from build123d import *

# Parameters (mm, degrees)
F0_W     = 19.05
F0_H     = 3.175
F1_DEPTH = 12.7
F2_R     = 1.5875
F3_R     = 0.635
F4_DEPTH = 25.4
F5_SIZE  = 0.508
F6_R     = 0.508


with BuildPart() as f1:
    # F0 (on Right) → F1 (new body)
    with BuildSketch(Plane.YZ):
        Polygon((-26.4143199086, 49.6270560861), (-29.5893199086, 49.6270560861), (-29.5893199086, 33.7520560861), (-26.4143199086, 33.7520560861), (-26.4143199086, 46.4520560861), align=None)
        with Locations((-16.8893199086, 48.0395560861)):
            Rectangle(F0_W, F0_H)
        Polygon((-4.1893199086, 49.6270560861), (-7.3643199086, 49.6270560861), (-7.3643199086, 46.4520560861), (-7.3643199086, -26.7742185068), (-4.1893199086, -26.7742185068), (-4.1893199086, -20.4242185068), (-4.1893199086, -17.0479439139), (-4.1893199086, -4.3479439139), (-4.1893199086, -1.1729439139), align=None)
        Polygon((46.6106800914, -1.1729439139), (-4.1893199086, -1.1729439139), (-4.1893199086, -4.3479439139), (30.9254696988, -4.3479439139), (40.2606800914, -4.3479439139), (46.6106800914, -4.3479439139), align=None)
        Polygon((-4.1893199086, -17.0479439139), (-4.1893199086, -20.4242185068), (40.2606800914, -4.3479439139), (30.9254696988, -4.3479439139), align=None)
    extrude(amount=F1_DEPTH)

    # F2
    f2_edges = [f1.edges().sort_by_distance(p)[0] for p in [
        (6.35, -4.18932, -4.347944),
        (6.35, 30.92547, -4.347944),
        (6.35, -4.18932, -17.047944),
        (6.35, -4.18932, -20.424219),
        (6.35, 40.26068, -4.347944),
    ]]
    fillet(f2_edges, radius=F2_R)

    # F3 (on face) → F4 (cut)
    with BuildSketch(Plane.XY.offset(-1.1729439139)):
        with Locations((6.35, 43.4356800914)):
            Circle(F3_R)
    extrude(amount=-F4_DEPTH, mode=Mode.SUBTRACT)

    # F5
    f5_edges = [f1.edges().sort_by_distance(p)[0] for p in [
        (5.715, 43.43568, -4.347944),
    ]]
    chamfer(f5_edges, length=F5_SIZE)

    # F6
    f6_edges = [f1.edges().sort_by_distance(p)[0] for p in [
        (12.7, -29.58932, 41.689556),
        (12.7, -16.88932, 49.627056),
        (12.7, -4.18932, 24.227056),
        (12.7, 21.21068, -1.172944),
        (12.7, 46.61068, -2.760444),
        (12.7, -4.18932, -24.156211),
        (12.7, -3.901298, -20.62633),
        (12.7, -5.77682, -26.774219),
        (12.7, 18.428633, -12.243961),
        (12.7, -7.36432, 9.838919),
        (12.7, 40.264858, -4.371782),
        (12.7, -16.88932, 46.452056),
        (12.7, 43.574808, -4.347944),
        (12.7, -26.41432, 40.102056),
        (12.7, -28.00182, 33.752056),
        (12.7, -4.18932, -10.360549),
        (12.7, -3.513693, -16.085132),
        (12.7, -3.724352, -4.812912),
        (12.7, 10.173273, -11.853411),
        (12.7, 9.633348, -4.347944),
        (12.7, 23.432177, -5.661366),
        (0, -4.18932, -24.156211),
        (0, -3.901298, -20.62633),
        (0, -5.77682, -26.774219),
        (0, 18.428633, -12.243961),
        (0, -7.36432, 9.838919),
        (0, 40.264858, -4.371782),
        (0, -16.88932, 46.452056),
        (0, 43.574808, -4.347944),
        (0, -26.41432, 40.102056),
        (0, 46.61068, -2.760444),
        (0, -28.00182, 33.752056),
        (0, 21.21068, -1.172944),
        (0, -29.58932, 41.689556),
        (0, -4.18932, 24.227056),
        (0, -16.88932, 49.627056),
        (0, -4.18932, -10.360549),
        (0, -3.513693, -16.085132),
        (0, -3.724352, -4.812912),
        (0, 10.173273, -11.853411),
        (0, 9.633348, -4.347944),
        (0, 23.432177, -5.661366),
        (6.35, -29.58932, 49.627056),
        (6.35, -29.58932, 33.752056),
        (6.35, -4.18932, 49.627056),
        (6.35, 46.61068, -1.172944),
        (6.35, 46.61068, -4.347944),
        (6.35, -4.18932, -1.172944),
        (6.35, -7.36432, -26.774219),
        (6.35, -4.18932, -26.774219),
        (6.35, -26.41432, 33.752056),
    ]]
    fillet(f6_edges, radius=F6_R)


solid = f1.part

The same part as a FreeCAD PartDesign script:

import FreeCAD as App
import Part
import Sketcher
from FreeCAD import Vector
Q = App.Units.Quantity


def edges_at(feature, points):
    """Names of the edges that pass closest to the given points."""
    edges = feature.Shape.Edges
    near = lambda p: min(range(len(edges)), key=lambda i: edges[i].distToShape(Part.Vertex(*p))[0])
    return sorted({f"Edge{near(p) + 1}" for p in points})


def add_polygon(sketch, points):
    """Adds a closed chain of lines whose ends are joined by coincident constraints."""
    first, n = sketch.GeometryCount, len(points)
    for a, b in zip(points, points[1:] + points[:1]):
        sketch.addGeometry(Part.LineSegment(App.Vector(*a, 0), App.Vector(*b, 0)), False)
    for i in range(n):
        sketch.addConstraint(Sketcher.Constraint("Coincident", first + i, 2, first + (i + 1) % n, 1))

doc = App.newDocument("Part")
body = doc.addObject("PartDesign::Body", "Body")

sketch1 = body.newObject("Sketcher::SketchObject", "Sketch")
sketch1.AttachmentSupport = (doc.getObject("YZ_Plane"), [""])
sketch1.MapMode = "FlatFace"
add_polygon(sketch1, [(-29.58932, 49.627056), (-29.58932, 33.752056), (-26.41432, 33.752056), (-26.41432, 46.452056), (-7.36432, 46.452056), (-7.36432, -26.774219), (-4.18932, -26.774219), (-4.18932, -20.424219), (40.26068, -4.347944), (46.61068, -4.347944), (46.61068, -1.172944), (-4.18932, -1.172944), (-4.18932, 49.627056)])
add_polygon(sketch1, [(-4.18932, -17.047944), (-4.18932, -4.347944), (30.92547, -4.347944)])
sketch1.addConstraint([
    Sketcher.Constraint("Vertical", 0),
    Sketcher.Constraint("Horizontal", 1),
    Sketcher.Constraint("Vertical", 2),
    Sketcher.Constraint("Horizontal", 3),
    Sketcher.Constraint("Vertical", 4),
    Sketcher.Constraint("Horizontal", 5),
    Sketcher.Constraint("Vertical", 6),
    Sketcher.Constraint("Horizontal", 8),
    Sketcher.Constraint("Vertical", 9),
    Sketcher.Constraint("Horizontal", 10),
    Sketcher.Constraint("Vertical", 11),
    Sketcher.Constraint("Horizontal", 12),
    Sketcher.Constraint("Vertical", 13),
    Sketcher.Constraint("Horizontal", 14),
    Sketcher.Constraint("Parallel", 7, 15),
    Sketcher.Constraint("Horizontal", 8, 2, 13, 2),
    Sketcher.Constraint("Vertical", 6, 2, 10, 2),
    Sketcher.Constraint("Vertical", 11, 2, 13, 2),
    Sketcher.Constraint("Equal", 1, 5),
    Sketcher.Constraint("Equal", 8, 6),
    Sketcher.Constraint("Equal", 5, 9),
    Sketcher.Constraint("Equal", 10, 11),
    Sketcher.Constraint("Equal", 2, 13),
    Sketcher.Constraint("DistanceX", 10, 2, 10, 1, Q("2 in")),
    Sketcher.Constraint("DistanceX", 12, 2, 12, 1, Q("1 in")),
    Sketcher.Constraint("DistanceY", 2, 1, 2, 2, Q("0.5 in")),
    Sketcher.Constraint("DistanceY", 7, 2, 3, 2, Q("2 in")),
    Sketcher.Constraint("DistanceX", 3, 1, 3, 2, Q("0.75 in")),
    Sketcher.Constraint("DistanceX", 8, 1, 8, 2, Q("0.25 in")),
    Sketcher.Constraint("DistanceX", 14, 1, 14, 2, 35.11479),
    Sketcher.Constraint("DistanceX", 0, 2, -1, 1, 29.58932),
    Sketcher.Constraint("DistanceY", 4, 2, -1, 1, 26.774219),
])
pad1 = body.newObject("PartDesign::Pad", "Pad")
pad1.Profile = sketch1
pad1.Length = Q("0.5 in")
doc.recompute()

fillet = body.newObject("PartDesign::Fillet", "Fillet")
fillet.Base = (pad1, edges_at(pad1, [
    (6.35, -4.189, -4.348),
    (6.35, 30.925, -4.348),
    (6.35, -4.189, -17.048),
    (6.35, -4.189, -20.424),
    (6.35, 40.261, -4.348),
]))
fillet.Radius = Q("0.0625 in")

sketch2 = body.newObject("Sketcher::SketchObject", "Sketch001")
sketch2.AttachmentSupport = (doc.getObject("XY_Plane"), [""])
sketch2.MapMode = "FlatFace"
sketch2.AttachmentOffset = App.Placement(Vector(0, 0, -1.172944), App.Rotation())
sketch2.addGeometry(Part.Circle(Vector(6.35, 43.43568, 0), Vector(0, 0, 1), 0.635), False)
sketch2.addConstraint([
    Sketcher.Constraint("Diameter", 0, Q("0.05 in")),
    Sketcher.Constraint("DistanceX", -1, 1, 0, 3, Q("0.25 in")),
    Sketcher.Constraint("DistanceY", -1, 1, 0, 3, 43.43568),
])
pocket1 = body.newObject("PartDesign::Pocket", "Pocket")
pocket1.Profile = sketch2
pocket1.Length = Q("1 in")
doc.recompute()

chamfer = body.newObject("PartDesign::Chamfer", "Chamfer")
chamfer.Base = (pocket1, edges_at(pocket1, [(5.715, 43.436, -4.348)]))
chamfer.Size = Q("0.02 in")
doc.recompute()

fillet2 = body.newObject("PartDesign::Fillet", "Fillet001")
fillet2.Base = (chamfer, edges_at(chamfer, [
    (12.7, -29.589, 41.69),
    (12.7, -16.889, 49.627),
    (12.7, -4.189, 24.227),
    (12.7, 21.211, -1.173),
    (12.7, 46.611, -2.76),
    (12.7, -4.189, -24.156),
    (12.7, -3.901, -20.626),
    (12.7, -5.777, -26.774),
    (12.7, 18.429, -12.244),
    (12.7, -7.364, 9.839),
    (12.7, 40.265, -4.372),
    (12.7, -16.889, 46.452),
    (12.7, 43.575, -4.348),
    (12.7, -26.414, 40.102),
    (12.7, -28.002, 33.752),
    (12.7, -4.189, -10.361),
    (12.7, -3.514, -16.085),
    (12.7, -3.724, -4.813),
    (12.7, 10.173, -11.853),
    (12.7, 9.633, -4.348),
    (12.7, 23.432, -5.661),
    (0, -4.189, -24.156),
    (0, -3.901, -20.626),
    (0, -5.777, -26.774),
    (0, 18.429, -12.244),
    (0, -7.364, 9.839),
    (0, 40.265, -4.372),
    (0, -16.889, 46.452),
    (0, 43.575, -4.348),
    (0, -26.414, 40.102),
    (0, 46.611, -2.76),
    (0, -28.002, 33.752),
    (0, 21.211, -1.173),
    (0, -29.589, 41.69),
    (0, -4.189, 24.227),
    (0, -16.889, 49.627),
    (0, -4.189, -10.361),
    (0, -3.514, -16.085),
    (0, -3.724, -4.813),
    (0, 10.173, -11.853),
    (0, 9.633, -4.348),
    (0, 23.432, -5.661),
    (6.35, -29.589, 49.627),
    (6.35, -29.589, 33.752),
    (6.35, -4.189, 49.627),
    (6.35, 46.611, -1.173),
    (6.35, 46.611, -4.348),
    (6.35, -4.189, -1.173),
    (6.35, -7.364, -26.774),
    (6.35, -4.189, -26.774),
    (6.35, -26.414, 33.752),
]))
fillet2.Radius = Q("0.02 in")

doc.recompute()
